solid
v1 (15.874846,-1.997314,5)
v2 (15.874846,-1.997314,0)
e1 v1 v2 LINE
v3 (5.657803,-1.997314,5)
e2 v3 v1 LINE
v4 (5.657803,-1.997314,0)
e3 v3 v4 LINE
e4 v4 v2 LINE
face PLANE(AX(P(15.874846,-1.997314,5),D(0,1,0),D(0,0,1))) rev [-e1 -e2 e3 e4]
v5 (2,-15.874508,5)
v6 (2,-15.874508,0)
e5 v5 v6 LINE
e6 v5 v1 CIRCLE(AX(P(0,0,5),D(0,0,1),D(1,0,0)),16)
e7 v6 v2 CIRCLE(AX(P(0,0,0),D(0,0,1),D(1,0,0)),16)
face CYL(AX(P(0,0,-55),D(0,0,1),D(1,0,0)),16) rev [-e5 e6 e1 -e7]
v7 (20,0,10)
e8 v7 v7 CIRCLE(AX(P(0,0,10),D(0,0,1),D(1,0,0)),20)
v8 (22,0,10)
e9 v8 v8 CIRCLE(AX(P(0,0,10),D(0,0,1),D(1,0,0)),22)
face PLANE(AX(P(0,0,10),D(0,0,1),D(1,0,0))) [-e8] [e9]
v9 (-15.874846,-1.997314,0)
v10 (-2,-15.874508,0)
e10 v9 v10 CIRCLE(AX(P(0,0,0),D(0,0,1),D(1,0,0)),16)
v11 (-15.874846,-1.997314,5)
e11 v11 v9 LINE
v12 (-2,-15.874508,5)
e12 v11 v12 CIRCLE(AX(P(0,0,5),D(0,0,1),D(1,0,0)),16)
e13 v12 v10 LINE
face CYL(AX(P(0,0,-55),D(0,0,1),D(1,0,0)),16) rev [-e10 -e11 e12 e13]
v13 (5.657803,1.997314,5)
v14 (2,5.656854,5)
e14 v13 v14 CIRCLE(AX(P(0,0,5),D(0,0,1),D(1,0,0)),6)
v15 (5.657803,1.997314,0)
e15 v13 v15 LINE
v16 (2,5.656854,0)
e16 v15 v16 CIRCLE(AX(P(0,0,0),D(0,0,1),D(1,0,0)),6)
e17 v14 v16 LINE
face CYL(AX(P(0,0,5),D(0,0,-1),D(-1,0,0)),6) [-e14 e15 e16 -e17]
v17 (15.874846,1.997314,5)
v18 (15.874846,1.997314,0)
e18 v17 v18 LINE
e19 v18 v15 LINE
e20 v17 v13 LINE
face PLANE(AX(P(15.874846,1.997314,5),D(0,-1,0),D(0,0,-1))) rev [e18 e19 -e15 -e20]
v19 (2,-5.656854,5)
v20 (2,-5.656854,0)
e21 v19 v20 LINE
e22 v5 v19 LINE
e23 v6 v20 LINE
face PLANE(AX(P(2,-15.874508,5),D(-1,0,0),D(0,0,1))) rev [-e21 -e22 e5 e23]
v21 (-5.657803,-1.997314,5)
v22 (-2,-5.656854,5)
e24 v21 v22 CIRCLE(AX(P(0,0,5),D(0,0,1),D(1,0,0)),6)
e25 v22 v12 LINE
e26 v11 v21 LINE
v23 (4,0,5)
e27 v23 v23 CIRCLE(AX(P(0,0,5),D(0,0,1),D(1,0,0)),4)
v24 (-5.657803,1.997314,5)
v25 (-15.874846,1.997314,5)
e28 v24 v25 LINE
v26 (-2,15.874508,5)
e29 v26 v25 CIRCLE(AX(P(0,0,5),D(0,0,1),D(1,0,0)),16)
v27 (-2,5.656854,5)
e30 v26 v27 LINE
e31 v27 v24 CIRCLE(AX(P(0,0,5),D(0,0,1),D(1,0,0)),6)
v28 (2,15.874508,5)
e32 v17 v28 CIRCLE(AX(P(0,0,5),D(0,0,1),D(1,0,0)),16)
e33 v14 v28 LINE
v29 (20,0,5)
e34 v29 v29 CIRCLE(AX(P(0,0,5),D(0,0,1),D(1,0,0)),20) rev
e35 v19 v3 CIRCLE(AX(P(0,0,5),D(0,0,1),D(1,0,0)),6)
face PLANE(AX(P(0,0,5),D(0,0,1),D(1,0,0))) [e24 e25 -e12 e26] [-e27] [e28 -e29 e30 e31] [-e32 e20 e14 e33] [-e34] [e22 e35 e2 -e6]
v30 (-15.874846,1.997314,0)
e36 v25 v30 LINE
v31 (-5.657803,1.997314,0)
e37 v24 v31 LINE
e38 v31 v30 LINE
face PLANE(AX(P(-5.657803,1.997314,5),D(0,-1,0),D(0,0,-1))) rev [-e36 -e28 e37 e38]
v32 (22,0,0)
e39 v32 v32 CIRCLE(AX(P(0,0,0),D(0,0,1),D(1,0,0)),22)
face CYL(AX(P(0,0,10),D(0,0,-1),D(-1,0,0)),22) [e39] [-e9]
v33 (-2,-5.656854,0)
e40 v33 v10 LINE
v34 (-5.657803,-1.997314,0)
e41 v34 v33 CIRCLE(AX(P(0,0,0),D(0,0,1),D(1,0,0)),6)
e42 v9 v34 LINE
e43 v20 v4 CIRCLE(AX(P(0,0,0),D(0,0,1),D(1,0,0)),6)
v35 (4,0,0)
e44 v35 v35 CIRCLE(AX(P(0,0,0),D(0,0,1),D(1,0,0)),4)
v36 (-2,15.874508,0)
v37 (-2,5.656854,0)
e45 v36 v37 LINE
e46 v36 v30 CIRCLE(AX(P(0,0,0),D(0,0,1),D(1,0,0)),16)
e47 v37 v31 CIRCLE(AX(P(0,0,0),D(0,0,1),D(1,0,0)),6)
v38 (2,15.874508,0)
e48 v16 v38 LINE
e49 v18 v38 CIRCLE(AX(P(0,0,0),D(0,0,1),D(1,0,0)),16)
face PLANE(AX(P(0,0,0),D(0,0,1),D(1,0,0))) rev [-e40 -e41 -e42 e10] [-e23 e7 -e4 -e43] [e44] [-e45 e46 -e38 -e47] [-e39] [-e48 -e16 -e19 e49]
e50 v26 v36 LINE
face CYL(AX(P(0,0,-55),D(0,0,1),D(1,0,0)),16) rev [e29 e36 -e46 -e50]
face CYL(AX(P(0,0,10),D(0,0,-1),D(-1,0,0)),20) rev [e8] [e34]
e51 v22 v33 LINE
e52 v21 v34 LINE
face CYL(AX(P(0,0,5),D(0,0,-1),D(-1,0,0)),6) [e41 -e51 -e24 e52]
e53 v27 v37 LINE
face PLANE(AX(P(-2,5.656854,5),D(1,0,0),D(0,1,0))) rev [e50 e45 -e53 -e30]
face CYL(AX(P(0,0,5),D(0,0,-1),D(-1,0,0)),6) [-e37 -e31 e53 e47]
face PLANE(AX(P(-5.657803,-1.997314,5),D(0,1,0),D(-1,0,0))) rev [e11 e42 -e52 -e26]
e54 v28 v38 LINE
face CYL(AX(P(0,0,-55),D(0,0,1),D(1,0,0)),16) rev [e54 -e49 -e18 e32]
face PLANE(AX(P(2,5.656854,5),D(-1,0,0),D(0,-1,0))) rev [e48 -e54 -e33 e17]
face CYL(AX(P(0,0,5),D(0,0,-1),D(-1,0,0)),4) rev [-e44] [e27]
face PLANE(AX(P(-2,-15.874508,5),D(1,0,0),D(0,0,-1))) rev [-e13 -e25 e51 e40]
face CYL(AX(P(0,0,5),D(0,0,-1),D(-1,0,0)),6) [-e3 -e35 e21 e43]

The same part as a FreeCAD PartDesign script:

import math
import FreeCAD as App
import Part
import Sketcher

V = App.Vector

doc = App.newDocument("Part")
body = doc.addObject("PartDesign::Body", "Body")

# Sketch on XY plane
sketch1 = doc.addObject("Sketcher::SketchObject", "Sketch")
body.addObject(sketch1)
sketch1.AttachmentSupport = (doc.XY_Plane, [""])
sketch1.MapMode = "FlatFace"
sketch1.addGeometry(Part.Circle(V(0, 0, 0), V(0, 0, 1), 20), False)
sketch1.addGeometry(Part.Circle(V(0, 0, 0), V(0, 0, 1), 4), False)
sketch1.addConstraint(Sketcher.Constraint("Coincident", 0, 3, -1, 1))
sketch1.addConstraint(Sketcher.Constraint("Coincident", 1, 3, -1, 1))
sketch1.addConstraint(Sketcher.Constraint("Diameter", 0, 40.0))
sketch1.addConstraint(Sketcher.Constraint("Diameter", 1, 8.0))
pad1 = doc.addObject("PartDesign::Pad", "Pad")
body.addObject(pad1)
pad1.Profile = sketch1
pad1.Length = 5

# Sketch on XY plane
sketch2 = doc.addObject("Sketcher::SketchObject", "Sketch001")
body.addObject(sketch2)
sketch2.AttachmentSupport = (doc.XY_Plane, [""])
sketch2.MapMode = "FlatFace"
sketch2.addGeometry(Part.Circle(V(0, 0, 0), V(0, 0, 1), 22), False)
sketch2.addGeometry(Part.Circle(V(0, 0, 0), V(0, 0, 1), 20), False)
sketch2.addConstraint(Sketcher.Constraint("Coincident", 0, 3, -1, 1))
sketch2.addConstraint(Sketcher.Constraint("Coincident", 1, 3, -1, 1))
sketch2.addConstraint(Sketcher.Constraint("Diameter", 0, 44.0))
sketch2.addConstraint(Sketcher.Constraint("Diameter", 1, 40.0))
pad2 = doc.addObject("PartDesign::Pad", "Pad001")
body.addObject(pad2)
pad2.Profile = sketch2
pad2.Length = 10

# Sketch on XY plane
sketch3 = doc.addObject("Sketcher::SketchObject", "Sketch002")
body.addObject(sketch3)
sketch3.AttachmentSupport = (doc.XY_Plane, [""])
sketch3.MapMode = "FlatFace"
sketch3.addGeometry(Part.Circle(V(0, 0, 0), V(0, 0, 1), 4), False)
sketch3.addConstraint(Sketcher.Constraint("Coincident", 0, 3, -1, 1))
sketch3.addConstraint(Sketcher.Constraint("Diameter", 0, 8.0))
pad3 = doc.addObject("PartDesign::Pad", "Pad002")
body.addObject(pad3)
pad3.Profile = sketch3
pad3.Length = 2

# Sketch on XY plane
sketch4 = doc.addObject("Sketcher::SketchObject", "Sketch003")
body.addObject(sketch4)
sketch4.AttachmentSupport = (doc.XY_Plane, [""])
sketch4.MapMode = "FlatFace"
sketch4.AttachmentOffset = App.Placement(V(0, 0, 5), App.Rotation())
sketch4.addGeometry(Part.Circle(V(0, 0, 0), V(0, 0, 1), 16), False)
sketch4.addConstraint(Sketcher.Constraint("Coincident", 0, 3, -1, 1))
sketch4.addConstraint(Sketcher.Constraint("Diameter", 0, 32.0))
pocket1 = doc.addObject("PartDesign::Pocket", "Pocket")
body.addObject(pocket1)
pocket1.Profile = sketch4
pocket1.Length = 60

# Sketch on XY plane
sketch5 = doc.addObject("Sketcher::SketchObject", "Sketch004")
body.addObject(sketch5)
sketch5.AttachmentSupport = (doc.XY_Plane, [""])
sketch5.MapMode = "FlatFace"
sketch5.AttachmentOffset = App.Placement(V(0, 0, 5), App.Rotation())
sketch5.addGeometry(Part.LineSegment(V(2, -15.9, 0), V(2, -5.7, 0)), False)
sketch5.addGeometry(Part.ArcOfCircle(Part.Circle(V(0, 0, 0), V(0, 0, 1), 6), math.radians(-71), math.radians(-19)), False)
sketch5.addGeometry(Part.LineSegment(V(5.7, -2, 0), V(15.9, -2, 0)), False)
sketch5.addGeometry(Part.ArcOfCircle(Part.Circle(V(0, 0, 0), V(0, 0, 1), 16), math.radians(-7.17), math.radians(7.17)), False)
sketch5.addGeometry(Part.LineSegment(V(15.9, 2, 0), V(5.7, 2, 0)), False)
sketch5.addGeometry(Part.ArcOfCircle(Part.Circle(V(0, 0, 0), V(0, 0, 1), 6), math.radians(19), math.radians(71)), False)
sketch5.addGeometry(Part.LineSegment(V(2, 5.7, 0), V(2, 15.9, 0)), False)
sketch5.addGeometry(Part.ArcOfCircle(Part.Circle(V(0, 0, 0), V(0, 0, 1), 16), math.radians(82.82), math.radians(97.18)), False)
sketch5.addGeometry(Part.LineSegment(V(-2, 15.9, 0), V(-2, 5.7, 0)), False)
sketch5.addGeometry(Part.ArcOfCircle(Part.Circle(V(0, 0, 0), V(0, 0, 1), 6), math.radians(109), math.radians(161)), False)
sketch5.addGeometry(Part.LineSegment(V(-5.7, 2, 0), V(-15.9, 2, 0)), False)
sketch5.addGeometry(Part.ArcOfCircle(Part.Circle(V(0, 0, 0), V(0, 0, 1), 16), math.radians(172.83), math.radians(187.17)), False)
sketch5.addGeometry(Part.LineSegment(V(-15.9, -2, 0), V(-5.7, -2, 0)), False)
sketch5.addGeometry(Part.ArcOfCircle(Part.Circle(V(0, 0, 0), V(0, 0, 1), 6), math.radians(-161), math.radians(-109)), False)
sketch5.addGeometry(Part.LineSegment(V(-2, -5.7, 0), V(-2, -15.9, 0)), False)
sketch5.addGeometry(Part.ArcOfCircle(Part.Circle(V(0, 0, 0), V(0, 0, 1), 16), math.radians(-97.18), math.radians(-82.82)), False)
sketch5.addGeometry(Part.Circle(V(0, 0, 0), V(0, 0, 1), 4), False)
sketch5.addConstraint(Sketcher.Constraint("Coincident", 0, 2, 1, 1))
sketch5.addConstraint(Sketcher.Constraint("Coincident", 1, 2, 2, 1))
sketch5.addConstraint(Sketcher.Constraint("Coincident", 2, 2, 3, 1))
sketch5.addConstraint(Sketcher.Constraint("Coincident", 3, 2, 4, 1))
sketch5.addConstraint(Sketcher.Constraint("Coincident", 4, 2, 5, 1))
sketch5.addConstraint(Sketcher.Constraint("Coincident", 5, 2, 6, 1))
sketch5.addConstraint(Sketcher.Constraint("Coincident", 6, 2, 7, 1))
sketch5.addConstraint(Sketcher.Constraint("Coincident", 7, 2, 8, 1))
sketch5.addConstraint(Sketcher.Constraint("Coincident", 8, 2, 9, 1))
sketch5.addConstraint(Sketcher.Constraint("Coincident", 9, 2, 10, 1))
sketch5.addConstraint(Sketcher.Constraint("Coincident", 10, 2, 11, 1))
sketch5.addConstraint(Sketcher.Constraint("Coincident", 11, 2, 12, 1))
sketch5.addConstraint(Sketcher.Constraint("Coincident", 12, 2, 13, 1))
sketch5.addConstraint(Sketcher.Constraint("Coincident", 13, 2, 14, 1))
sketch5.addConstraint(Sketcher.Constraint("Coincident", 14, 2, 15, 1))
sketch5.addConstraint(Sketcher.Constraint("Coincident", 15, 2, 0, 1))
sketch5.addConstraint(Sketcher.Constraint("Vertical", 0))
sketch5.addConstraint(Sketcher.Constraint("Horizontal", 2))
sketch5.addConstraint(Sketcher.Constraint("Horizontal", 4))
sketch5.addConstraint(Sketcher.Constraint("Vertical", 6))
sketch5.addConstraint(Sketcher.Constraint("Vertical", 8))
sketch5.addConstraint(Sketcher.Constraint("Horizontal", 10))
sketch5.addConstraint(Sketcher.Constraint("Horizontal", 12))
sketch5.addConstraint(Sketcher.Constraint("Vertical", 14))
sketch5.addConstraint(Sketcher.Constraint("Coincident", 1, 3, -1, 1))
sketch5.addConstraint(Sketcher.Constraint("Coincident", 3, 3, -1, 1))
sketch5.addConstraint(Sketcher.Constraint("Coincident", 5, 3, -1, 1))
sketch5.addConstraint(Sketcher.Constraint("Coincident", 7, 3, -1, 1))
sketch5.addConstraint(Sketcher.Constraint("Coincident", 9, 3, -1, 1))
sketch5.addConstraint(Sketcher.Constraint("Coincident", 11, 3, -1, 1))
sketch5.addConstraint(Sketcher.Constraint("Coincident", 13, 3, -1, 1))
sketch5.addConstraint(Sketcher.Constraint("Coincident", 15, 3, -1, 1))
sketch5.addConstraint(Sketcher.Constraint("Coincident", 16, 3, -1, 1))
sketch5.addConstraint(Sketcher.Constraint("Equal", 1, 5))
sketch5.addConstraint(Sketcher.Constraint("Equal", 3, 7))
sketch5.addConstraint(Sketcher.Constraint("Equal", 5, 9))
sketch5.addConstraint(Sketcher.Constraint("Equal", 7, 11))
sketch5.addConstraint(Sketcher.Constraint("Equal", 9, 13))
sketch5.addConstraint(Sketcher.Constraint("Equal", 11, 15))
sketch5.addConstraint(Sketcher.Constraint("Horizontal", 6, 2, 7, 2))
sketch5.addConstraint(Sketcher.Constraint("Horizontal", 4, 2, 9, 2))
sketch5.addConstraint(Sketcher.Constraint("Horizontal", 2, 2, 11, 2))
sketch5.addConstraint(Sketcher.Constraint("Horizontal", 0, 2, 13, 2))
sketch5.addConstraint(Sketcher.Constraint("Vertical", 2, 2, 3, 2))
sketch5.addConstraint(Sketcher.Constraint("Vertical", 0, 2, 5, 2))
sketch5.addConstraint(Sketcher.Constraint("Diameter", 16, 8.0))
sketch5.addConstraint(Sketcher.Constraint("Radius", 1, 6.0))
sketch5.addConstraint(Sketcher.Constraint("Radius", 3, 16.0))
sketch5.addConstraint(Sketcher.Constraint("DistanceX", -1, 1, 0, 2, 2.0))
sketch5.addConstraint(Sketcher.Constraint("DistanceX", 2, 1, 2, 2, 10.217043))
pad4 = doc.addObject("PartDesign::Pad", "Pad003")
body.addObject(pad4)
pad4.Profile = sketch5
pad4.Length = 5
pad4.Reversed = True

doc.recompute()
